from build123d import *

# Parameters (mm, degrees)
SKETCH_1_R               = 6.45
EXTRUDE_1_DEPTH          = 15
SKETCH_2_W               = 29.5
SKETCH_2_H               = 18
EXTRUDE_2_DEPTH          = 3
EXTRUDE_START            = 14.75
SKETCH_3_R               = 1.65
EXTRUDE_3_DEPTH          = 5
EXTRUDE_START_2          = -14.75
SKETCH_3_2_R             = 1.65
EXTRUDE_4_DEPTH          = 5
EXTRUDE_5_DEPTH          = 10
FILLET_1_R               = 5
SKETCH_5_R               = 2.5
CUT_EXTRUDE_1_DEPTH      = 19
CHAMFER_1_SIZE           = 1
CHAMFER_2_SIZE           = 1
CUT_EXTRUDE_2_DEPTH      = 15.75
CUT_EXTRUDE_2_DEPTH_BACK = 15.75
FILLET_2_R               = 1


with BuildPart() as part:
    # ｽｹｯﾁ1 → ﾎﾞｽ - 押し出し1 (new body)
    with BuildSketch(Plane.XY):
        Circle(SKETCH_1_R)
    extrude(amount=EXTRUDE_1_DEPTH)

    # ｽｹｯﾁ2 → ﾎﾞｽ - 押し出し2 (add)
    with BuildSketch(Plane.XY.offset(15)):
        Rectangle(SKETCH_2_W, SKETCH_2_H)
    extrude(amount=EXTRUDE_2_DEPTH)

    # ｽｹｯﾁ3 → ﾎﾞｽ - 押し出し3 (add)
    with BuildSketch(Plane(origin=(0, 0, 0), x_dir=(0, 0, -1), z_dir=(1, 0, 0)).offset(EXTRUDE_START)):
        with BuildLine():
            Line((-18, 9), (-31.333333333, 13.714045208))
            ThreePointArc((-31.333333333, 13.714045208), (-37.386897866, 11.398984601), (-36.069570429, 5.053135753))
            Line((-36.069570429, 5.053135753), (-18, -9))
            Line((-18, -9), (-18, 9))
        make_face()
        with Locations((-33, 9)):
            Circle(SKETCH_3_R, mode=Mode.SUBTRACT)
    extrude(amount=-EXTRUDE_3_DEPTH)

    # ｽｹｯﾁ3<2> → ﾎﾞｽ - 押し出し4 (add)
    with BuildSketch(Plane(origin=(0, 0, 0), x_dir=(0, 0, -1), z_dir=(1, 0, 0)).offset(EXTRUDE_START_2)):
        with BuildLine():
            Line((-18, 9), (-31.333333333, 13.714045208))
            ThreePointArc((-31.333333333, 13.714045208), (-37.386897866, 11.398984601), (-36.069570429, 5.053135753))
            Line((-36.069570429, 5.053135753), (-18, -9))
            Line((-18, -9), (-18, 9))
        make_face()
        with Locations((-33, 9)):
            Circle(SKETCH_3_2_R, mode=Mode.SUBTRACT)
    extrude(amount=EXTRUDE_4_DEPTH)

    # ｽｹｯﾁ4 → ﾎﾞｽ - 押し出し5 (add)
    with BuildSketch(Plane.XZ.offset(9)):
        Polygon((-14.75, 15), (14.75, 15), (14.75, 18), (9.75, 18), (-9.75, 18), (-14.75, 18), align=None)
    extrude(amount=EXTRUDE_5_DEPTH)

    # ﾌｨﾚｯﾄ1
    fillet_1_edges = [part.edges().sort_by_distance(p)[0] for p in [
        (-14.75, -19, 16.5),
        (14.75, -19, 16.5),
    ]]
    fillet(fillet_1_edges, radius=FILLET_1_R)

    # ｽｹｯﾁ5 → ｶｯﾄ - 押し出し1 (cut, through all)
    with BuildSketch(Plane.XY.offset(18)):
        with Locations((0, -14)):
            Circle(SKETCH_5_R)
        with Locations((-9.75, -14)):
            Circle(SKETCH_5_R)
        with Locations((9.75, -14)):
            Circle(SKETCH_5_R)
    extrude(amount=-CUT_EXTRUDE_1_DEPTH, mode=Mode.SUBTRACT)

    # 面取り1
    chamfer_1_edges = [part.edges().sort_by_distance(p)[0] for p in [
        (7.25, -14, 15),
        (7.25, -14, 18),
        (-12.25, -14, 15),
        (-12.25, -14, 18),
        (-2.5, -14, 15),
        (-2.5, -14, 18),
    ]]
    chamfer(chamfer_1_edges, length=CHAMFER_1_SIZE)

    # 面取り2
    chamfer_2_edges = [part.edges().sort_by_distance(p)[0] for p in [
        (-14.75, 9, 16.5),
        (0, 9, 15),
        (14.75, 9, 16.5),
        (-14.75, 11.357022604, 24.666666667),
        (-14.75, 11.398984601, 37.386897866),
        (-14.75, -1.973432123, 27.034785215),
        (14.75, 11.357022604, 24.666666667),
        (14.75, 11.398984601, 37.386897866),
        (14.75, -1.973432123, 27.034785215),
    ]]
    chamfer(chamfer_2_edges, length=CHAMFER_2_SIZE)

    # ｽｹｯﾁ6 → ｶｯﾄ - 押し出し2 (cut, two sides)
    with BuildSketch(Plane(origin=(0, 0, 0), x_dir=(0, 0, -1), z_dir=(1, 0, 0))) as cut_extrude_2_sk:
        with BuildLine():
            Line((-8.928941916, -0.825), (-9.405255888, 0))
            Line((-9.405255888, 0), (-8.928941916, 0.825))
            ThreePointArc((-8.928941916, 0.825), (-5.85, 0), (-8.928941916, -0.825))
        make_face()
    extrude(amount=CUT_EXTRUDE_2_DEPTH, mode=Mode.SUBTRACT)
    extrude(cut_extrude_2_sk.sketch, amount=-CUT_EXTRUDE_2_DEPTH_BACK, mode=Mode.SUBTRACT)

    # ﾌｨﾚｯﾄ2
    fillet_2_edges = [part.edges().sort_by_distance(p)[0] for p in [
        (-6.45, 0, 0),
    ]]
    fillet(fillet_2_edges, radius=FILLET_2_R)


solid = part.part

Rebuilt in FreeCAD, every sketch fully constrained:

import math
import FreeCAD as App
import Part
import Sketcher

V = App.Vector
Q = App.Units.Quantity


def edges_at(feature, points):
    """Names of the edges that pass closest to the given points."""
    edges = feature.Shape.Edges
    near = lambda p: min(range(len(edges)), key=lambda i: edges[i].distToShape(Part.Vertex(*p))[0])
    return sorted({f"Edge{near(p) + 1}" for p in points})


def add_polygon(sketch, points):
    """Adds a closed chain of lines whose ends are joined by coincident constraints."""
    first, n = sketch.GeometryCount, len(points)
    for a, b in zip(points, points[1:] + points[:1]):
        sketch.addGeometry(Part.LineSegment(App.Vector(*a, 0), App.Vector(*b, 0)), False)
    for i in range(n):
        sketch.addConstraint(Sketcher.Constraint("Coincident", first + i, 2, first + (i + 1) % n, 1))

doc = App.newDocument("Part")
params = doc.addObject("Spreadsheet::Sheet", "Params")
for row, (alias, value) in enumerate([
    ("sketch1_diameter", "12.9 mm"),
    ("pad1_length", "15 mm"),
    ("sketch2_height", "18 mm"),
    ("sketch2_width", "29.5 mm"),
    ("pad2_length", "3 mm"),
    ("sketch3_radius", "5 mm"),
    ("sketch3_diameter", "3.3 mm"),
    ("sketch3_width", "18 mm"),
    ("pad3_length", "5 mm"),
    ("sketch4_radius", "5 mm"),
    ("sketch4_diameter", "3.3 mm"),
    ("sketch4_width", "18 mm"),
    ("pad4_length", "5 mm"),
    ("sketch5_height", "3 mm"),
    ("sketch5_width", "29.5 mm"),
    ("pad5_length", "10 mm"),
    ("fillet_radius", "5 mm"),
    ("sketch6_diameter", "5 mm"),
    ("chamfer_size", "1 mm"),
    ("chamfer2_size", "1 mm"),
    ("sketch7_radius", "1.65 mm"),
    ("fillet2_radius", "1 mm"),
], start=1):
    params.set(f"A{row}", alias)
    params.set(f"B{row}", "=" + value)
    params.setAlias(f"B{row}", alias)

body = doc.addObject("PartDesign::Body", "Body")

# Sketch on XY plane
sketch1 = body.newObject("Sketcher::SketchObject", "Sketch")
sketch1.AttachmentSupport = (doc.getObject("XY_Plane"), [""])
sketch1.MapMode = "FlatFace"
sketch1.addGeometry(Part.Circle(V(0, 0, 0), V(0, 0, 1), 6.45), False)
sketch1.addConstraint([
    Sketcher.Constraint("Coincident", 0, 3, -1, 1),
    Sketcher.Constraint("Diameter", 0, Q("12.9 mm")),
])
sketch1.setExpression("Constraints[1]", "Params.sketch1_diameter")
pad1 = body.newObject("PartDesign::Pad", "Pad")
pad1.Profile = sketch1
pad1.setExpression("Length", "Params.pad1_length")

# Sketch on XY plane
sketch2 = body.newObject("Sketcher::SketchObject", "Sketch001")
sketch2.AttachmentSupport = (doc.getObject("XY_Plane"), [""])
sketch2.MapMode = "FlatFace"
sketch2.AttachmentOffset = App.Placement(V(0, 0, 15), App.Rotation())
add_polygon(sketch2, [(-14.75, 9), (-14.75, -9), (14.75, -9), (14.75, 9)])  # lines 0-3
sketch2.addConstraint([
    Sketcher.Constraint("Vertical", 0),
    Sketcher.Constraint("Horizontal", 1),
    Sketcher.Constraint("Vertical", 2),
    Sketcher.Constraint("Horizontal", 3),
    Sketcher.Constraint("Symmetric", 0, 2, 2, 2, -1, 1),
    Sketcher.Constraint("DistanceY", 0, 2, 0, 1, Q("18 mm")),
    Sketcher.Constraint("DistanceX", 1, 1, 1, 2, Q("29.5 mm")),
])
sketch2.setExpression("Constraints[9]", "Params.sketch2_height")
sketch2.setExpression("Constraints[10]", "Params.sketch2_width")
pad2 = body.newObject("PartDesign::Pad", "Pad001")
pad2.Profile = sketch2
pad2.setExpression("Length", "Params.pad2_length")

# Sketch on YZ plane
sketch3 = body.newObject("Sketcher::SketchObject", "Sketch002")
sketch3.AttachmentSupport = (doc.getObject("YZ_Plane"), [""])
sketch3.MapMode = "FlatFace"
sketch3.AttachmentOffset = App.Placement(V(0, 0, 14.75), App.Rotation())
sketch3.addGeometry([
    Part.LineSegment(V(9, 18, 0), V(13.714045, 31.333333, 0)),  # 0
    Part.ArcOfCircle(Part.Circle(V(9, 33, 0), V(0, 0, 1), 5), math.radians(-19.471221), math.radians(142.126942)),  # 1
    Part.LineSegment(V(5.053136, 36.06957, 0), V(-9, 18, 0)),  # 2
    Part.LineSegment(V(-9, 18, 0), V(9, 18, 0)),  # 3
    Part.Circle(V(9, 33, 0), V(0, 0, 1), 1.65),  # 4
], False)
sketch3.addConstraint([
    Sketcher.Constraint("Tangent", 0, 2, 1, 1),
    Sketcher.Constraint("Tangent", 1, 2, 2, 1),
    Sketcher.Constraint("Coincident", 2, 2, 3, 1),
    Sketcher.Constraint("Coincident", 3, 2, 0, 1),
    Sketcher.Constraint("Horizontal", 3),
    Sketcher.Constraint("Coincident", 4, 3, 1, 3),
    Sketcher.Constraint("Vertical", 4, 3, 3, 2),
    Sketcher.Constraint("Radius", 1, Q("5 mm")),
    Sketcher.Constraint("Diameter", 4, Q("3.3 mm")),
    Sketcher.Constraint("DistanceX", 3, 1, 3, 2, Q("18 mm")),
    Sketcher.Constraint("DistanceX", -1, 1, 1, 3, Q("9 mm")),
    Sketcher.Constraint("DistanceY", -1, 1, 1, 3, Q("33 mm")),
    Sketcher.Constraint("DistanceY", -1, 1, 2, 2, Q("18 mm")),
])
sketch3.setExpression("Constraints[7]", "Params.sketch3_radius")
sketch3.setExpression("Constraints[8]", "Params.sketch3_diameter")
sketch3.setExpression("Constraints[9]", "Params.sketch3_width")
pad3 = body.newObject("PartDesign::Pad", "Pad002")
pad3.Profile = sketch3
pad3.setExpression("Length", "Params.pad3_length")
pad3.Reversed = True

# Sketch on YZ plane
sketch4 = body.newObject("Sketcher::SketchObject", "Sketch003")
sketch4.AttachmentSupport = (doc.getObject("YZ_Plane"), [""])
sketch4.MapMode = "FlatFace"
sketch4.AttachmentOffset = App.Placement(V(0, 0, -14.75), App.Rotation())
sketch4.addGeometry([
    Part.LineSegment(V(9, 18, 0), V(13.714045, 31.333333, 0)),  # 0
    Part.ArcOfCircle(Part.Circle(V(9, 33, 0), V(0, 0, 1), 5), math.radians(-19.471221), math.radians(142.126942)),  # 1
    Part.LineSegment(V(5.053136, 36.06957, 0), V(-9, 18, 0)),  # 2
    Part.LineSegment(V(-9, 18, 0), V(9, 18, 0)),  # 3
    Part.Circle(V(9, 33, 0), V(0, 0, 1), 1.65),  # 4
], False)
sketch4.addConstraint([
    Sketcher.Constraint("Tangent", 0, 2, 1, 1),
    Sketcher.Constraint("Tangent", 1, 2, 2, 1),
    Sketcher.Constraint("Coincident", 2, 2, 3, 1),
    Sketcher.Constraint("Coincident", 3, 2, 0, 1),
    Sketcher.Constraint("Horizontal", 3),
    Sketcher.Constraint("Coincident", 4, 3, 1, 3),
    Sketcher.Constraint("Vertical", 4, 3, 3, 2),
    Sketcher.Constraint("Radius", 1, Q("5 mm")),
    Sketcher.Constraint("Diameter", 4, Q("3.3 mm")),
    Sketcher.Constraint("DistanceX", 3, 1, 3, 2, Q("18 mm")),
    Sketcher.Constraint("DistanceX", -1, 1, 1, 3, Q("9 mm")),
    Sketcher.Constraint("DistanceY", -1, 1, 1, 3, Q("33 mm")),
    Sketcher.Constraint("DistanceY", -1, 1, 2, 2, Q("18 mm")),
])
sketch4.setExpression("Constraints[7]", "Params.sketch4_radius")
sketch4.setExpression("Constraints[8]", "Params.sketch4_diameter")
sketch4.setExpression("Constraints[9]", "Params.sketch4_width")
pad4 = body.newObject("PartDesign::Pad", "Pad003")
pad4.Profile = sketch4
pad4.setExpression("Length", "Params.pad4_length")

# Sketch on XZ plane
sketch5 = body.newObject("Sketcher::SketchObject", "Sketch004")
sketch5.AttachmentSupport = (doc.getObject("XZ_Plane"), [""])
sketch5.MapMode = "FlatFace"
sketch5.AttachmentOffset = App.Placement(V(0, 0, 9), App.Rotation())
add_polygon(sketch5, [(-14.75, 15), (14.75, 15), (14.75, 18), (-14.75, 18)])  # lines 0-3
sketch5.addConstraint([
    Sketcher.Constraint("Horizontal", 0),
    Sketcher.Constraint("Vertical", 1),
    Sketcher.Constraint("Horizontal", 2),
    Sketcher.Constraint("Vertical", 3),
    Sketcher.Constraint("DistanceY", 1, 1, 1, 2, Q("3 mm")),
    Sketcher.Constraint("DistanceX", 0, 1, 0, 2, Q("29.5 mm")),
    Sketcher.Constraint("DistanceY", -1, 1, 0, 2, Q("15 mm")),
    Sketcher.Constraint("DistanceX", -1, 1, 0, 2, Q("14.75 mm")),
])
sketch5.setExpression("Constraints[8]", "Params.sketch5_height")
sketch5.setExpression("Constraints[9]", "Params.sketch5_width")
pad5 = body.newObject("PartDesign::Pad", "Pad004")
pad5.Profile = sketch5
pad5.setExpression("Length", "Params.pad5_length")
doc.recompute()

fillet = body.newObject("PartDesign::Fillet", "Fillet")
fillet.Base = (pad5, edges_at(pad5, [(-14.75, -19, 16.5), (14.75, -19, 16.5)]))
fillet.setExpression("Radius", "Params.fillet_radius")

# Sketch on XY plane
sketch6 = body.newObject("Sketcher::SketchObject", "Sketch005")
sketch6.AttachmentSupport = (doc.getObject("XY_Plane"), [""])
sketch6.MapMode = "FlatFace"
sketch6.AttachmentOffset = App.Placement(V(0, 0, 18), App.Rotation())
sketch6.addGeometry([
    Part.Circle(V(0, -14, 0), V(0, 0, 1), 2.5),
    Part.Circle(V(-9.75, -14, 0), V(0, 0, 1), 2.5),
    Part.Circle(V(9.75, -14, 0), V(0, 0, 1), 2.5),
], False)
sketch6.addConstraint([
    Sketcher.Constraint("Equal", 0, 1),
    Sketcher.Constraint("Equal", 1, 2),
    Sketcher.Constraint("Symmetric", 1, 3, 2, 3, -2),
    Sketcher.Constraint("PointOnObject", 0, 3, -2),
    Sketcher.Constraint("Horizontal", 0, 3, 1, 3),
    Sketcher.Constraint("Diameter", 0, Q("5 mm")),
    Sketcher.Constraint("DistanceY", 0, 3, -1, 1, Q("14 mm")),
    Sketcher.Constraint("DistanceX", 1, 3, 2, 3, Q("19.5 mm")),
])
sketch6.setExpression("Constraints[5]", "Params.sketch6_diameter")
pocket1 = body.newObject("PartDesign::Pocket", "Pocket")
pocket1.Profile = sketch6
pocket1.Type = "ThroughAll"
doc.recompute()

chamfer = body.newObject("PartDesign::Chamfer", "Chamfer")
chamfer.Base = (pocket1, edges_at(pocket1, [
    (7.25, -14, 15),
    (7.25, -14, 18),
    (-12.25, -14, 15),
    (-12.25, -14, 18),
    (-2.5, -14, 15),
    (-2.5, -14, 18),
]))
chamfer.setExpression("Size", "Params.chamfer_size")
doc.recompute()

chamfer2 = body.newObject("PartDesign::Chamfer", "Chamfer001")
chamfer2.Base = (chamfer, edges_at(chamfer, [
    (-14.75, 9, 16.5),
    (0, 9, 15),
    (14.75, 9, 16.5),
    (-14.75, 11.357, 24.667),
    (-14.75, 11.399, 37.387),
    (-14.75, -1.973, 27.035),
    (14.75, 11.357, 24.667),
    (14.75, 11.399, 37.387),
    (14.75, -1.973, 27.035),
]))
chamfer2.setExpression("Size", "Params.chamfer2_size")

# Sketch on YZ plane
sketch7 = body.newObject("Sketcher::SketchObject", "Sketch006")
sketch7.AttachmentSupport = (doc.getObject("YZ_Plane"), [""])
sketch7.MapMode = "FlatFace"
sketch7.addGeometry([
    Part.LineSegment(V(0, 9.405256, 0), V(-0.825, 8.928942, 0)),
    Part.ArcOfCircle(Part.Circle(V(0, 7.5, 0), V(0, 0, 1), 1.65), math.radians(120), math.radians(420)),
    Part.LineSegment(V(0.825, 8.928942, 0), V(0, 9.405256, 0)),
], False)
sketch7.addConstraint([
    Sketcher.Constraint("Tangent", 0, 2, 1, 1),
    Sketcher.Constraint("Tangent", 1, 2, 2, 1),
    Sketcher.Constraint("Coincident", 2, 2, 0, 1),
    Sketcher.Constraint("Symmetric", 0, 2, 1, 2, -2),
    Sketcher.Constraint("Angle", 0, Q("-150 deg")),
    Sketcher.Constraint("Radius", 1, Q("1.65 mm")),
    Sketcher.Constraint("DistanceY", -1, 1, 1, 3, Q("7.5 mm")),
])
sketch7.setExpression("Constraints[5]", "Params.sketch7_radius")
pocket2 = body.newObject("PartDesign::Pocket", "Pocket001")
pocket2.Profile = sketch7
pocket2.Type = "ThroughAll"
pocket2.Midplane = True
doc.recompute()

fillet2 = body.newObject("PartDesign::Fillet", "Fillet001")
fillet2.Base = (pocket2, edges_at(pocket2, [(-6.45, 0, 0)]))
fillet2.setExpression("Radius", "Params.fillet2_radius")

doc.recompute()
